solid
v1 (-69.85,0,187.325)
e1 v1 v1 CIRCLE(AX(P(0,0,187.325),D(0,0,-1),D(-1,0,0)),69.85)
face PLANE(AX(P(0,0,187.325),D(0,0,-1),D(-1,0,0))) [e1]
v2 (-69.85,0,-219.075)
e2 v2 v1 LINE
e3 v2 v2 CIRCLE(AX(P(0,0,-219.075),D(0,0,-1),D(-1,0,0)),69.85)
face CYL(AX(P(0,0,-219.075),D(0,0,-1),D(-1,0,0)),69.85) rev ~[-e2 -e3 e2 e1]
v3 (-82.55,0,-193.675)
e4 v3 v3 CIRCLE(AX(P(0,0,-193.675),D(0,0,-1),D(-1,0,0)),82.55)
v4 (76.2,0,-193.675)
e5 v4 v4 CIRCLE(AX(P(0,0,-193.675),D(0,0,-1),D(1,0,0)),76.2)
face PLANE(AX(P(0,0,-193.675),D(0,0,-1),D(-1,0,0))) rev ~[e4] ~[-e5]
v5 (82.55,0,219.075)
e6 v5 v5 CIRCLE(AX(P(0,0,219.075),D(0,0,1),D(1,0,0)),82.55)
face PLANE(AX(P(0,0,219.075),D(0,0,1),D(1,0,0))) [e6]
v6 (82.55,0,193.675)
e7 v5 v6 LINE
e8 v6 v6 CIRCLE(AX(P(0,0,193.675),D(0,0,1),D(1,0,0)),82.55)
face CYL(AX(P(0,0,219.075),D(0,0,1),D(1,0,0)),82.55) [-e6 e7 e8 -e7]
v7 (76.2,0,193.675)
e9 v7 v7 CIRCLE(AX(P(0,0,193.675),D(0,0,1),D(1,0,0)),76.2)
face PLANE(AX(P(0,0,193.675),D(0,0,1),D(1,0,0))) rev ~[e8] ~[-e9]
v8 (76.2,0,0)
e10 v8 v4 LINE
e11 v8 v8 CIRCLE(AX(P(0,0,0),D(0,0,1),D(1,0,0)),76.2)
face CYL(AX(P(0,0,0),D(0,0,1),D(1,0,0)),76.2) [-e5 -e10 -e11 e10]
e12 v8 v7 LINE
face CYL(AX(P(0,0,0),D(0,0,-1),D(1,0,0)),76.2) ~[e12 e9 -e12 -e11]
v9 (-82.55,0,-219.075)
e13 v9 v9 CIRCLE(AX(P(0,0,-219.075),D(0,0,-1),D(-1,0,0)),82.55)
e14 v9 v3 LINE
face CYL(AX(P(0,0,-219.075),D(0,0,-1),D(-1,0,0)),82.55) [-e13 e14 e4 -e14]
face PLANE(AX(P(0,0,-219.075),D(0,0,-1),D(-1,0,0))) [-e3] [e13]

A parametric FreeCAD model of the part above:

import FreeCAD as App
import Part
import Sketcher
from FreeCAD import Vector
Q = App.Units.Quantity

doc = App.newDocument("Part")
params = doc.addObject("Spreadsheet::Sheet", "Params")
for row, (alias, value) in enumerate([
    ("sketch1_diameter", "6 in"),
    ("pad1_length", "17.25 in"),
    ("sketch2_diameter", "5.5 in"),
    ("pocket1_length", "16 in"),
    ("sketch3_diameter", "6.5 in"),
    ("sketch3_diameter2", "6 in"),
    ("pad2_length", "1 in"),
    ("sketch4_diameter", "6 in"),
    ("sketch4_diameter2", "6.5 in"),
    ("pad3_length", "1 in"),
], start=1):
    params.set(f"A{row}", alias)
    params.set(f"B{row}", "=" + value)
    params.setAlias(f"B{row}", alias)

body = doc.addObject("PartDesign::Body", "Body")

# Sketch on XY plane
sketch1 = body.newObject("Sketcher::SketchObject", "Sketch")
sketch1.AttachmentSupport = (doc.getObject("XY_Plane"), [""])
sketch1.MapMode = "FlatFace"
sketch1.addGeometry(Part.Circle(Vector(0, 0, 0), Vector(0, 0, 1), 76), False)
sketch1.addConstraint([
    Sketcher.Constraint("Coincident", 0, 3, -1, 1),
    Sketcher.Constraint("Diameter", 0, Q("6 in")),
])
sketch1.setExpression("Constraints[1]", "Params.sketch1_diameter")
pad1 = body.newObject("PartDesign::Pad", "Pad")
pad1.Profile = sketch1
pad1.setExpression("Length", "Params.pad1_length")
pad1.Midplane = True

# Sketch on XY plane
sketch2 = body.newObject("Sketcher::SketchObject", "Sketch001")
sketch2.AttachmentSupport = (doc.getObject("XY_Plane"), [""])
sketch2.MapMode = "FlatFace"
sketch2.AttachmentOffset = App.Placement(Vector(0, 0, -8.625 * 25.4), App.Rotation())
sketch2.addGeometry(Part.Circle(Vector(0, 0, 0), Vector(0, 0, 1), 70), False)
sketch2.addConstraint([
    Sketcher.Constraint("Coincident", 0, 3, -1, 1),
    Sketcher.Constraint("Diameter", 0, Q("5.5 in")),
])
sketch2.setExpression("Constraints[1]", "Params.sketch2_diameter")
pocket1 = body.newObject("PartDesign::Pocket", "Pocket")
pocket1.Profile = sketch2
pocket1.setExpression("Length", "Params.pocket1_length")
pocket1.Reversed = True

# Sketch on XY plane
sketch3 = body.newObject("Sketcher::SketchObject", "Sketch002")
sketch3.AttachmentSupport = (doc.getObject("XY_Plane"), [""])
sketch3.MapMode = "FlatFace"
sketch3.AttachmentOffset = App.Placement(Vector(0, 0, 8.625 * 25.4), App.Rotation())
sketch3.addGeometry([
    Part.Circle(Vector(0, 0, 0), Vector(0, 0, 1), 83),
    Part.Circle(Vector(0, 0, 0), Vector(0, 0, 1), 76),
], False)
sketch3.addConstraint([
    Sketcher.Constraint("Coincident", 0, 3, -1, 1),
    Sketcher.Constraint("Coincident", 1, 3, -1, 1),
    Sketcher.Constraint("Diameter", 0, Q("6.5 in")),
    Sketcher.Constraint("Diameter", 1, Q("6 in")),
])
sketch3.setExpression("Constraints[2]", "Params.sketch3_diameter")
sketch3.setExpression("Constraints[3]", "Params.sketch3_diameter2")
pad2 = body.newObject("PartDesign::Pad", "Pad001")
pad2.Profile = sketch3
pad2.setExpression("Length", "Params.pad2_length")
pad2.Reversed = True

# Sketch on XY plane
sketch4 = body.newObject("Sketcher::SketchObject", "Sketch003")
sketch4.AttachmentSupport = (doc.getObject("XY_Plane"), [""])
sketch4.MapMode = "FlatFace"
sketch4.AttachmentOffset = App.Placement(Vector(0, 0, -8.625 * 25.4), App.Rotation())
sketch4.addGeometry([
    Part.Circle(Vector(0, 0, 0), Vector(0, 0, 1), 83),
    Part.Circle(Vector(0, 0, 0), Vector(0, 0, 1), 76),
], False)
sketch4.addConstraint([
    Sketcher.Constraint("Coincident", 0, 3, -1, 1),
    Sketcher.Constraint("Coincident", 1, 3, -1, 1),
    Sketcher.Constraint("Diameter", 1, Q("6 in")),
    Sketcher.Constraint("Diameter", 0, Q("6.5 in")),
])
sketch4.setExpression("Constraints[2]", "Params.sketch4_diameter")
sketch4.setExpression("Constraints[3]", "Params.sketch4_diameter2")
pad3 = body.newObject("PartDesign::Pad", "Pad002")
pad3.Profile = sketch4
pad3.setExpression("Length", "Params.pad3_length")

doc.recompute()
